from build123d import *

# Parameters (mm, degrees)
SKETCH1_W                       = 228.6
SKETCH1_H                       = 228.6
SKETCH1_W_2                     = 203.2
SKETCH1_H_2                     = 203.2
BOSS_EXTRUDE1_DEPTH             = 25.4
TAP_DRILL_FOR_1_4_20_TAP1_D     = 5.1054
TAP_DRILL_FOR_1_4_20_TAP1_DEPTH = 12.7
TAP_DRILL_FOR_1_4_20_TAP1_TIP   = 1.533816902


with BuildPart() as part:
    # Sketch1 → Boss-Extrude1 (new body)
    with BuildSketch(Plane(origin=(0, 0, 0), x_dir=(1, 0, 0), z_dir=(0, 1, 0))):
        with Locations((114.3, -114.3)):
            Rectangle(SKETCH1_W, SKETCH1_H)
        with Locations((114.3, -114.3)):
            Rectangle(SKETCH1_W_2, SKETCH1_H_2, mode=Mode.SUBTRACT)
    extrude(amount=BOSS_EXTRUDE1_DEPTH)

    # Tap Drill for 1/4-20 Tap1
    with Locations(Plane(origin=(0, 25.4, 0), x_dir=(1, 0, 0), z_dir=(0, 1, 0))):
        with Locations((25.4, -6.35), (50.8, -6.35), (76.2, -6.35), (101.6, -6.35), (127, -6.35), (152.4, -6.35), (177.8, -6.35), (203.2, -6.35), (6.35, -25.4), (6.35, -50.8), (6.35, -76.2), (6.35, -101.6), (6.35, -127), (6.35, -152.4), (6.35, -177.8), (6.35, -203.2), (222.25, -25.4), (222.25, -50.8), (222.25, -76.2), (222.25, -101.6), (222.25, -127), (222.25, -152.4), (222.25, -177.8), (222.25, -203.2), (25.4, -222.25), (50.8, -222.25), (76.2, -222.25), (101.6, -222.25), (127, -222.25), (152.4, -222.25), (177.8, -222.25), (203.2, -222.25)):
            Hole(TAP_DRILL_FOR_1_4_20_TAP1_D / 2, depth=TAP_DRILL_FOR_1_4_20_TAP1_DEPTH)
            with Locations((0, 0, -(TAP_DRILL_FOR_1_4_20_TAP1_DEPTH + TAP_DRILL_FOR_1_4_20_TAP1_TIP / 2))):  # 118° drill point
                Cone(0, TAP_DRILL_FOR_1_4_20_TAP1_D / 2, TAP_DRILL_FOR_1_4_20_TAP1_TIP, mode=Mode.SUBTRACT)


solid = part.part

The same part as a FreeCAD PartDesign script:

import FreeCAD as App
import Part
import Sketcher
Q = App.Units.Quantity


def add_polygon(sketch, points):
    """Adds a closed chain of lines whose ends are joined by coincident constraints."""
    first, n = sketch.GeometryCount, len(points)
    for a, b in zip(points, points[1:] + points[:1]):
        sketch.addGeometry(Part.LineSegment(App.Vector(*a, 0), App.Vector(*b, 0)), False)
    for i in range(n):
        sketch.addConstraint(Sketcher.Constraint("Coincident", first + i, 2, first + (i + 1) % n, 1))

doc = App.newDocument("Part")
body = doc.addObject("PartDesign::Body", "Body")

# Sketch on XZ plane
sketch1 = doc.addObject("Sketcher::SketchObject", "Sketch")
body.addObject(sketch1)
sketch1.AttachmentSupport = (doc.XZ_Plane, [""])
sketch1.MapMode = "FlatFace"
add_polygon(sketch1, [(0, 0), (0, 229), (229, 229), (229, 0)])  # lines 0-3
add_polygon(sketch1, [(216, 216), (13, 216), (13, 13), (216, 13)])  # lines 4-7
sketch1.addConstraint([
    Sketcher.Constraint("Vertical", 0),
    Sketcher.Constraint("Horizontal", 1),
    Sketcher.Constraint("Vertical", 2),
    Sketcher.Constraint("Horizontal", 3),
    Sketcher.Constraint("Horizontal", 4),
    Sketcher.Constraint("Vertical", 5),
    Sketcher.Constraint("Horizontal", 6),
    Sketcher.Constraint("Vertical", 7),
    Sketcher.Constraint("Coincident", 3, 2, -1, 1),
    Sketcher.Constraint("Equal", 3, 0),
    Sketcher.Constraint("Equal", 6, 5),
    Sketcher.Constraint("DistanceX", 1, 1, 1, 2, Q("9 in")),
    Sketcher.Constraint("DistanceX", 4, 2, 4, 1, Q("8 in")),
    Sketcher.Constraint("DistanceX", -1, 1, 4, 2, Q("0.5 in")),
    Sketcher.Constraint("DistanceY", -1, 1, 4, 2, Q("8.5 in")),
])
pad1 = doc.addObject("PartDesign::Pad", "Pad")
body.addObject(pad1)
pad1.Profile = sketch1
pad1.Length = Q("1 in")
pad1.Reversed = True

# Sketch on XZ plane
sketch2 = doc.addObject("Sketcher::SketchObject", "Sketch001")
body.addObject(sketch2)
sketch2.AttachmentSupport = (doc.XZ_Plane, [""])
sketch2.MapMode = "FlatFace"
sketch2.AttachmentOffset = App.Placement(App.Vector(0, 0, -1 * 25.4), App.Rotation())
sketch2.addGeometry([
    Part.Circle(App.Vector(25.4, 6.3, 0), App.Vector(0, 0, 1), 2.6),  # 0
    Part.Circle(App.Vector(50.8, 6.3, 0), App.Vector(0, 0, 1), 2.6),  # 1
    Part.Circle(App.Vector(76.2, 6.3, 0), App.Vector(0, 0, 1), 2.6),  # 2
    Part.Circle(App.Vector(101.6, 6.3, 0), App.Vector(0, 0, 1), 2.6),  # 3
    Part.Circle(App.Vector(127, 6.3, 0), App.Vector(0, 0, 1), 2.6),  # 4
    Part.Circle(App.Vector(152.4, 6.3, 0), App.Vector(0, 0, 1), 2.6),  # 5
    Part.Circle(App.Vector(177.8, 6.3, 0), App.Vector(0, 0, 1), 2.6),  # 6
    Part.Circle(App.Vector(203.2, 6.3, 0), App.Vector(0, 0, 1), 2.6),  # 7
    Part.Circle(App.Vector(6.3, 25.4, 0), App.Vector(0, 0, 1), 2.6),  # 8
    Part.Circle(App.Vector(6.3, 50.8, 0), App.Vector(0, 0, 1), 2.6),  # 9
    Part.Circle(App.Vector(6.3, 76.2, 0), App.Vector(0, 0, 1), 2.6),  # 10
    Part.Circle(App.Vector(6.3, 101.6, 0), App.Vector(0, 0, 1), 2.6),  # 11
    Part.Circle(App.Vector(6.3, 127, 0), App.Vector(0, 0, 1), 2.6),  # 12
    Part.Circle(App.Vector(6.3, 152.4, 0), App.Vector(0, 0, 1), 2.6),  # 13
    Part.Circle(App.Vector(6.3, 177.8, 0), App.Vector(0, 0, 1), 2.6),  # 14
    Part.Circle(App.Vector(6.3, 203.2, 0), App.Vector(0, 0, 1), 2.6),  # 15
    Part.Circle(App.Vector(222.2, 25.4, 0), App.Vector(0, 0, 1), 2.6),  # 16
    Part.Circle(App.Vector(222.2, 50.8, 0), App.Vector(0, 0, 1), 2.6),  # 17
    Part.Circle(App.Vector(222.2, 76.2, 0), App.Vector(0, 0, 1), 2.6),  # 18
    Part.Circle(App.Vector(222.2, 101.6, 0), App.Vector(0, 0, 1), 2.6),  # 19
    Part.Circle(App.Vector(222.2, 127, 0), App.Vector(0, 0, 1), 2.6),  # 20
    Part.Circle(App.Vector(222.2, 152.4, 0), App.Vector(0, 0, 1), 2.6),  # 21
    Part.Circle(App.Vector(222.2, 177.8, 0), App.Vector(0, 0, 1), 2.6),  # 22
    Part.Circle(App.Vector(222.2, 203.2, 0), App.Vector(0, 0, 1), 2.6),  # 23
    Part.Circle(App.Vector(25.4, 222.2, 0), App.Vector(0, 0, 1), 2.6),  # 24
    Part.Circle(App.Vector(50.8, 222.2, 0), App.Vector(0, 0, 1), 2.6),  # 25
    Part.Circle(App.Vector(76.2, 222.2, 0), App.Vector(0, 0, 1), 2.6),  # 26
    Part.Circle(App.Vector(101.6, 222.2, 0), App.Vector(0, 0, 1), 2.6),  # 27
    Part.Circle(App.Vector(127, 222.2, 0), App.Vector(0, 0, 1), 2.6),  # 28
    Part.Circle(App.Vector(152.4, 222.2, 0), App.Vector(0, 0, 1), 2.6),  # 29
    Part.Circle(App.Vector(177.8, 222.2, 0), App.Vector(0, 0, 1), 2.6),  # 30
    Part.Circle(App.Vector(203.2, 222.2, 0), App.Vector(0, 0, 1), 2.6),  # 31
], False)
sketch2.addConstraint([
    Sketcher.Constraint("Equal", 0, 1),
    Sketcher.Constraint("Equal", 1, 2),
    Sketcher.Constraint("Equal", 2, 3),
    Sketcher.Constraint("Equal", 3, 4),
    Sketcher.Constraint("Equal", 4, 5),
    Sketcher.Constraint("Equal", 5, 6),
    Sketcher.Constraint("Equal", 6, 7),
    Sketcher.Constraint("Equal", 7, 8),
    Sketcher.Constraint("Equal", 8, 9),
    Sketcher.Constraint("Equal", 9, 10),
    Sketcher.Constraint("Equal", 10, 11),
    Sketcher.Constraint("Equal", 11, 12),
    Sketcher.Constraint("Equal", 12, 13),
    Sketcher.Constraint("Equal", 13, 14),
    Sketcher.Constraint("Equal", 14, 15),
    Sketcher.Constraint("Equal", 15, 16),
    Sketcher.Constraint("Equal", 16, 17),
    Sketcher.Constraint("Equal", 17, 18),
    Sketcher.Constraint("Equal", 18, 19),
    Sketcher.Constraint("Equal", 19, 20),
    Sketcher.Constraint("Equal", 20, 21),
    Sketcher.Constraint("Equal", 21, 22),
    Sketcher.Constraint("Equal", 22, 23),
    Sketcher.Constraint("Equal", 23, 24),
    Sketcher.Constraint("Equal", 24, 25),
    Sketcher.Constraint("Equal", 25, 26),
    Sketcher.Constraint("Equal", 26, 27),
    Sketcher.Constraint("Equal", 27, 28),
    Sketcher.Constraint("Equal", 28, 29),
    Sketcher.Constraint("Equal", 29, 30),
    Sketcher.Constraint("Equal", 30, 31),
    Sketcher.Constraint("Horizontal", 0, 3, 1, 3),
    Sketcher.Constraint("Horizontal", 1, 3, 2, 3),
    Sketcher.Constraint("Horizontal", 2, 3, 3, 3),
    Sketcher.Constraint("Horizontal", 3, 3, 4, 3),
    Sketcher.Constraint("Horizontal", 4, 3, 5, 3),
    Sketcher.Constraint("Horizontal", 5, 3, 6, 3),
    Sketcher.Constraint("Horizontal", 6, 3, 7, 3),
    Sketcher.Constraint("Horizontal", 8, 3, 16, 3),
    Sketcher.Constraint("Horizontal", 9, 3, 17, 3),
    Sketcher.Constraint("Horizontal", 10, 3, 18, 3),
    Sketcher.Constraint("Horizontal", 11, 3, 19, 3),
    Sketcher.Constraint("Horizontal", 12, 3, 20, 3),
    Sketcher.Constraint("Horizontal", 13, 3, 21, 3),
    Sketcher.Constraint("Horizontal", 14, 3, 22, 3),
    Sketcher.Constraint("Horizontal", 15, 3, 23, 3),
    Sketcher.Constraint("Horizontal", 24, 3, 25, 3),
    Sketcher.Constraint("Horizontal", 25, 3, 26, 3),
    Sketcher.Constraint("Horizontal", 26, 3, 27, 3),
    Sketcher.Constraint("Horizontal", 27, 3, 28, 3),
    Sketcher.Constraint("Horizontal", 28, 3, 29, 3),
    Sketcher.Constraint("Horizontal", 29, 3, 30, 3),
    Sketcher.Constraint("Horizontal", 30, 3, 31, 3),
    Sketcher.Constraint("Vertical", 8, 3, 9, 3),
    Sketcher.Constraint("Vertical", 9, 3, 10, 3),
    Sketcher.Constraint("Vertical", 10, 3, 11, 3),
    Sketcher.Constraint("Vertical", 11, 3, 12, 3),
    Sketcher.Constraint("Vertical", 12, 3, 13, 3),
    Sketcher.Constraint("Vertical", 13, 3, 14, 3),
    Sketcher.Constraint("Vertical", 14, 3, 15, 3),
    Sketcher.Constraint("Vertical", 16, 3, 17, 3),
    Sketcher.Constraint("Vertical", 17, 3, 18, 3),
    Sketcher.Constraint("Vertical", 18, 3, 19, 3),
    Sketcher.Constraint("Vertical", 19, 3, 20, 3),
    Sketcher.Constraint("Vertical", 20, 3, 21, 3),
    Sketcher.Constraint("Vertical", 21, 3, 22, 3),
    Sketcher.Constraint("Vertical", 22, 3, 23, 3),
    Sketcher.Constraint("Vertical", 0, 3, 24, 3),
    Sketcher.Constraint("Vertical", 1, 3, 25, 3),
    Sketcher.Constraint("Vertical", 2, 3, 26, 3),
    Sketcher.Constraint("Vertical", 3, 3, 27, 3),
    Sketcher.Constraint("Vertical", 4, 3, 28, 3),
    Sketcher.Constraint("Vertical", 5, 3, 29, 3),
    Sketcher.Constraint("Vertical", 6, 3, 30, 3),
    Sketcher.Constraint("Vertical", 7, 3, 31, 3),
    Sketcher.Constraint("Diameter", 0, Q("0.201 in")),
    Sketcher.Constraint("DistanceX", -1, 1, 0, 3, Q("1 in")),
    Sketcher.Constraint("DistanceX", -1, 1, 1, 3, Q("2 in")),
    Sketcher.Constraint("DistanceX", -1, 1, 2, 3, Q("3 in")),
    Sketcher.Constraint("DistanceX", -1, 1, 3, 3, Q("4 in")),
    Sketcher.Constraint("DistanceX", -1, 1, 4, 3, Q("5 in")),
    Sketcher.Constraint("DistanceX", -1, 1, 5, 3, Q("6 in")),
    Sketcher.Constraint("DistanceX", -1, 1, 6, 3, Q("7 in")),
    Sketcher.Constraint("DistanceX", -1, 1, 7, 3, Q("8 in")),
    Sketcher.Constraint("DistanceY", -1, 1, 8, 3, Q("1 in")),
    Sketcher.Constraint("DistanceY", -1, 1, 9, 3, Q("2 in")),
    Sketcher.Constraint("DistanceY", -1, 1, 10, 3, Q("3 in")),
    Sketcher.Constraint("DistanceY", -1, 1, 11, 3, Q("4 in")),
    Sketcher.Constraint("DistanceY", -1, 1, 12, 3, Q("5 in")),
    Sketcher.Constraint("DistanceY", -1, 1, 13, 3, Q("6 in")),
    Sketcher.Constraint("DistanceY", -1, 1, 14, 3, Q("7 in")),
    Sketcher.Constraint("DistanceY", -1, 1, 15, 3, Q("8 in")),
    Sketcher.Constraint("DistanceY", -1, 1, 0, 3, Q("0.25 in")),
    Sketcher.Constraint("DistanceX", -1, 1, 8, 3, Q("0.25 in")),
    Sketcher.Constraint("DistanceX", -1, 1, 16, 3, Q("8.75 in")),
    Sketcher.Constraint("DistanceY", -1, 1, 24, 3, Q("8.75 in")),
])
doc.recompute()
hole = doc.addObject("PartDesign::Hole", "Hole")
body.addObject(hole)
hole.Profile = sketch2
hole.ThreadType = "None"
hole.Diameter = Q("0.201 in")
hole.DepthType = "Dimension"
hole.Depth = Q("0.5 in")
hole.DrillPoint = "Angled"
hole.DrillPointAngle = 118
hole.Reversed = True

doc.recompute()
